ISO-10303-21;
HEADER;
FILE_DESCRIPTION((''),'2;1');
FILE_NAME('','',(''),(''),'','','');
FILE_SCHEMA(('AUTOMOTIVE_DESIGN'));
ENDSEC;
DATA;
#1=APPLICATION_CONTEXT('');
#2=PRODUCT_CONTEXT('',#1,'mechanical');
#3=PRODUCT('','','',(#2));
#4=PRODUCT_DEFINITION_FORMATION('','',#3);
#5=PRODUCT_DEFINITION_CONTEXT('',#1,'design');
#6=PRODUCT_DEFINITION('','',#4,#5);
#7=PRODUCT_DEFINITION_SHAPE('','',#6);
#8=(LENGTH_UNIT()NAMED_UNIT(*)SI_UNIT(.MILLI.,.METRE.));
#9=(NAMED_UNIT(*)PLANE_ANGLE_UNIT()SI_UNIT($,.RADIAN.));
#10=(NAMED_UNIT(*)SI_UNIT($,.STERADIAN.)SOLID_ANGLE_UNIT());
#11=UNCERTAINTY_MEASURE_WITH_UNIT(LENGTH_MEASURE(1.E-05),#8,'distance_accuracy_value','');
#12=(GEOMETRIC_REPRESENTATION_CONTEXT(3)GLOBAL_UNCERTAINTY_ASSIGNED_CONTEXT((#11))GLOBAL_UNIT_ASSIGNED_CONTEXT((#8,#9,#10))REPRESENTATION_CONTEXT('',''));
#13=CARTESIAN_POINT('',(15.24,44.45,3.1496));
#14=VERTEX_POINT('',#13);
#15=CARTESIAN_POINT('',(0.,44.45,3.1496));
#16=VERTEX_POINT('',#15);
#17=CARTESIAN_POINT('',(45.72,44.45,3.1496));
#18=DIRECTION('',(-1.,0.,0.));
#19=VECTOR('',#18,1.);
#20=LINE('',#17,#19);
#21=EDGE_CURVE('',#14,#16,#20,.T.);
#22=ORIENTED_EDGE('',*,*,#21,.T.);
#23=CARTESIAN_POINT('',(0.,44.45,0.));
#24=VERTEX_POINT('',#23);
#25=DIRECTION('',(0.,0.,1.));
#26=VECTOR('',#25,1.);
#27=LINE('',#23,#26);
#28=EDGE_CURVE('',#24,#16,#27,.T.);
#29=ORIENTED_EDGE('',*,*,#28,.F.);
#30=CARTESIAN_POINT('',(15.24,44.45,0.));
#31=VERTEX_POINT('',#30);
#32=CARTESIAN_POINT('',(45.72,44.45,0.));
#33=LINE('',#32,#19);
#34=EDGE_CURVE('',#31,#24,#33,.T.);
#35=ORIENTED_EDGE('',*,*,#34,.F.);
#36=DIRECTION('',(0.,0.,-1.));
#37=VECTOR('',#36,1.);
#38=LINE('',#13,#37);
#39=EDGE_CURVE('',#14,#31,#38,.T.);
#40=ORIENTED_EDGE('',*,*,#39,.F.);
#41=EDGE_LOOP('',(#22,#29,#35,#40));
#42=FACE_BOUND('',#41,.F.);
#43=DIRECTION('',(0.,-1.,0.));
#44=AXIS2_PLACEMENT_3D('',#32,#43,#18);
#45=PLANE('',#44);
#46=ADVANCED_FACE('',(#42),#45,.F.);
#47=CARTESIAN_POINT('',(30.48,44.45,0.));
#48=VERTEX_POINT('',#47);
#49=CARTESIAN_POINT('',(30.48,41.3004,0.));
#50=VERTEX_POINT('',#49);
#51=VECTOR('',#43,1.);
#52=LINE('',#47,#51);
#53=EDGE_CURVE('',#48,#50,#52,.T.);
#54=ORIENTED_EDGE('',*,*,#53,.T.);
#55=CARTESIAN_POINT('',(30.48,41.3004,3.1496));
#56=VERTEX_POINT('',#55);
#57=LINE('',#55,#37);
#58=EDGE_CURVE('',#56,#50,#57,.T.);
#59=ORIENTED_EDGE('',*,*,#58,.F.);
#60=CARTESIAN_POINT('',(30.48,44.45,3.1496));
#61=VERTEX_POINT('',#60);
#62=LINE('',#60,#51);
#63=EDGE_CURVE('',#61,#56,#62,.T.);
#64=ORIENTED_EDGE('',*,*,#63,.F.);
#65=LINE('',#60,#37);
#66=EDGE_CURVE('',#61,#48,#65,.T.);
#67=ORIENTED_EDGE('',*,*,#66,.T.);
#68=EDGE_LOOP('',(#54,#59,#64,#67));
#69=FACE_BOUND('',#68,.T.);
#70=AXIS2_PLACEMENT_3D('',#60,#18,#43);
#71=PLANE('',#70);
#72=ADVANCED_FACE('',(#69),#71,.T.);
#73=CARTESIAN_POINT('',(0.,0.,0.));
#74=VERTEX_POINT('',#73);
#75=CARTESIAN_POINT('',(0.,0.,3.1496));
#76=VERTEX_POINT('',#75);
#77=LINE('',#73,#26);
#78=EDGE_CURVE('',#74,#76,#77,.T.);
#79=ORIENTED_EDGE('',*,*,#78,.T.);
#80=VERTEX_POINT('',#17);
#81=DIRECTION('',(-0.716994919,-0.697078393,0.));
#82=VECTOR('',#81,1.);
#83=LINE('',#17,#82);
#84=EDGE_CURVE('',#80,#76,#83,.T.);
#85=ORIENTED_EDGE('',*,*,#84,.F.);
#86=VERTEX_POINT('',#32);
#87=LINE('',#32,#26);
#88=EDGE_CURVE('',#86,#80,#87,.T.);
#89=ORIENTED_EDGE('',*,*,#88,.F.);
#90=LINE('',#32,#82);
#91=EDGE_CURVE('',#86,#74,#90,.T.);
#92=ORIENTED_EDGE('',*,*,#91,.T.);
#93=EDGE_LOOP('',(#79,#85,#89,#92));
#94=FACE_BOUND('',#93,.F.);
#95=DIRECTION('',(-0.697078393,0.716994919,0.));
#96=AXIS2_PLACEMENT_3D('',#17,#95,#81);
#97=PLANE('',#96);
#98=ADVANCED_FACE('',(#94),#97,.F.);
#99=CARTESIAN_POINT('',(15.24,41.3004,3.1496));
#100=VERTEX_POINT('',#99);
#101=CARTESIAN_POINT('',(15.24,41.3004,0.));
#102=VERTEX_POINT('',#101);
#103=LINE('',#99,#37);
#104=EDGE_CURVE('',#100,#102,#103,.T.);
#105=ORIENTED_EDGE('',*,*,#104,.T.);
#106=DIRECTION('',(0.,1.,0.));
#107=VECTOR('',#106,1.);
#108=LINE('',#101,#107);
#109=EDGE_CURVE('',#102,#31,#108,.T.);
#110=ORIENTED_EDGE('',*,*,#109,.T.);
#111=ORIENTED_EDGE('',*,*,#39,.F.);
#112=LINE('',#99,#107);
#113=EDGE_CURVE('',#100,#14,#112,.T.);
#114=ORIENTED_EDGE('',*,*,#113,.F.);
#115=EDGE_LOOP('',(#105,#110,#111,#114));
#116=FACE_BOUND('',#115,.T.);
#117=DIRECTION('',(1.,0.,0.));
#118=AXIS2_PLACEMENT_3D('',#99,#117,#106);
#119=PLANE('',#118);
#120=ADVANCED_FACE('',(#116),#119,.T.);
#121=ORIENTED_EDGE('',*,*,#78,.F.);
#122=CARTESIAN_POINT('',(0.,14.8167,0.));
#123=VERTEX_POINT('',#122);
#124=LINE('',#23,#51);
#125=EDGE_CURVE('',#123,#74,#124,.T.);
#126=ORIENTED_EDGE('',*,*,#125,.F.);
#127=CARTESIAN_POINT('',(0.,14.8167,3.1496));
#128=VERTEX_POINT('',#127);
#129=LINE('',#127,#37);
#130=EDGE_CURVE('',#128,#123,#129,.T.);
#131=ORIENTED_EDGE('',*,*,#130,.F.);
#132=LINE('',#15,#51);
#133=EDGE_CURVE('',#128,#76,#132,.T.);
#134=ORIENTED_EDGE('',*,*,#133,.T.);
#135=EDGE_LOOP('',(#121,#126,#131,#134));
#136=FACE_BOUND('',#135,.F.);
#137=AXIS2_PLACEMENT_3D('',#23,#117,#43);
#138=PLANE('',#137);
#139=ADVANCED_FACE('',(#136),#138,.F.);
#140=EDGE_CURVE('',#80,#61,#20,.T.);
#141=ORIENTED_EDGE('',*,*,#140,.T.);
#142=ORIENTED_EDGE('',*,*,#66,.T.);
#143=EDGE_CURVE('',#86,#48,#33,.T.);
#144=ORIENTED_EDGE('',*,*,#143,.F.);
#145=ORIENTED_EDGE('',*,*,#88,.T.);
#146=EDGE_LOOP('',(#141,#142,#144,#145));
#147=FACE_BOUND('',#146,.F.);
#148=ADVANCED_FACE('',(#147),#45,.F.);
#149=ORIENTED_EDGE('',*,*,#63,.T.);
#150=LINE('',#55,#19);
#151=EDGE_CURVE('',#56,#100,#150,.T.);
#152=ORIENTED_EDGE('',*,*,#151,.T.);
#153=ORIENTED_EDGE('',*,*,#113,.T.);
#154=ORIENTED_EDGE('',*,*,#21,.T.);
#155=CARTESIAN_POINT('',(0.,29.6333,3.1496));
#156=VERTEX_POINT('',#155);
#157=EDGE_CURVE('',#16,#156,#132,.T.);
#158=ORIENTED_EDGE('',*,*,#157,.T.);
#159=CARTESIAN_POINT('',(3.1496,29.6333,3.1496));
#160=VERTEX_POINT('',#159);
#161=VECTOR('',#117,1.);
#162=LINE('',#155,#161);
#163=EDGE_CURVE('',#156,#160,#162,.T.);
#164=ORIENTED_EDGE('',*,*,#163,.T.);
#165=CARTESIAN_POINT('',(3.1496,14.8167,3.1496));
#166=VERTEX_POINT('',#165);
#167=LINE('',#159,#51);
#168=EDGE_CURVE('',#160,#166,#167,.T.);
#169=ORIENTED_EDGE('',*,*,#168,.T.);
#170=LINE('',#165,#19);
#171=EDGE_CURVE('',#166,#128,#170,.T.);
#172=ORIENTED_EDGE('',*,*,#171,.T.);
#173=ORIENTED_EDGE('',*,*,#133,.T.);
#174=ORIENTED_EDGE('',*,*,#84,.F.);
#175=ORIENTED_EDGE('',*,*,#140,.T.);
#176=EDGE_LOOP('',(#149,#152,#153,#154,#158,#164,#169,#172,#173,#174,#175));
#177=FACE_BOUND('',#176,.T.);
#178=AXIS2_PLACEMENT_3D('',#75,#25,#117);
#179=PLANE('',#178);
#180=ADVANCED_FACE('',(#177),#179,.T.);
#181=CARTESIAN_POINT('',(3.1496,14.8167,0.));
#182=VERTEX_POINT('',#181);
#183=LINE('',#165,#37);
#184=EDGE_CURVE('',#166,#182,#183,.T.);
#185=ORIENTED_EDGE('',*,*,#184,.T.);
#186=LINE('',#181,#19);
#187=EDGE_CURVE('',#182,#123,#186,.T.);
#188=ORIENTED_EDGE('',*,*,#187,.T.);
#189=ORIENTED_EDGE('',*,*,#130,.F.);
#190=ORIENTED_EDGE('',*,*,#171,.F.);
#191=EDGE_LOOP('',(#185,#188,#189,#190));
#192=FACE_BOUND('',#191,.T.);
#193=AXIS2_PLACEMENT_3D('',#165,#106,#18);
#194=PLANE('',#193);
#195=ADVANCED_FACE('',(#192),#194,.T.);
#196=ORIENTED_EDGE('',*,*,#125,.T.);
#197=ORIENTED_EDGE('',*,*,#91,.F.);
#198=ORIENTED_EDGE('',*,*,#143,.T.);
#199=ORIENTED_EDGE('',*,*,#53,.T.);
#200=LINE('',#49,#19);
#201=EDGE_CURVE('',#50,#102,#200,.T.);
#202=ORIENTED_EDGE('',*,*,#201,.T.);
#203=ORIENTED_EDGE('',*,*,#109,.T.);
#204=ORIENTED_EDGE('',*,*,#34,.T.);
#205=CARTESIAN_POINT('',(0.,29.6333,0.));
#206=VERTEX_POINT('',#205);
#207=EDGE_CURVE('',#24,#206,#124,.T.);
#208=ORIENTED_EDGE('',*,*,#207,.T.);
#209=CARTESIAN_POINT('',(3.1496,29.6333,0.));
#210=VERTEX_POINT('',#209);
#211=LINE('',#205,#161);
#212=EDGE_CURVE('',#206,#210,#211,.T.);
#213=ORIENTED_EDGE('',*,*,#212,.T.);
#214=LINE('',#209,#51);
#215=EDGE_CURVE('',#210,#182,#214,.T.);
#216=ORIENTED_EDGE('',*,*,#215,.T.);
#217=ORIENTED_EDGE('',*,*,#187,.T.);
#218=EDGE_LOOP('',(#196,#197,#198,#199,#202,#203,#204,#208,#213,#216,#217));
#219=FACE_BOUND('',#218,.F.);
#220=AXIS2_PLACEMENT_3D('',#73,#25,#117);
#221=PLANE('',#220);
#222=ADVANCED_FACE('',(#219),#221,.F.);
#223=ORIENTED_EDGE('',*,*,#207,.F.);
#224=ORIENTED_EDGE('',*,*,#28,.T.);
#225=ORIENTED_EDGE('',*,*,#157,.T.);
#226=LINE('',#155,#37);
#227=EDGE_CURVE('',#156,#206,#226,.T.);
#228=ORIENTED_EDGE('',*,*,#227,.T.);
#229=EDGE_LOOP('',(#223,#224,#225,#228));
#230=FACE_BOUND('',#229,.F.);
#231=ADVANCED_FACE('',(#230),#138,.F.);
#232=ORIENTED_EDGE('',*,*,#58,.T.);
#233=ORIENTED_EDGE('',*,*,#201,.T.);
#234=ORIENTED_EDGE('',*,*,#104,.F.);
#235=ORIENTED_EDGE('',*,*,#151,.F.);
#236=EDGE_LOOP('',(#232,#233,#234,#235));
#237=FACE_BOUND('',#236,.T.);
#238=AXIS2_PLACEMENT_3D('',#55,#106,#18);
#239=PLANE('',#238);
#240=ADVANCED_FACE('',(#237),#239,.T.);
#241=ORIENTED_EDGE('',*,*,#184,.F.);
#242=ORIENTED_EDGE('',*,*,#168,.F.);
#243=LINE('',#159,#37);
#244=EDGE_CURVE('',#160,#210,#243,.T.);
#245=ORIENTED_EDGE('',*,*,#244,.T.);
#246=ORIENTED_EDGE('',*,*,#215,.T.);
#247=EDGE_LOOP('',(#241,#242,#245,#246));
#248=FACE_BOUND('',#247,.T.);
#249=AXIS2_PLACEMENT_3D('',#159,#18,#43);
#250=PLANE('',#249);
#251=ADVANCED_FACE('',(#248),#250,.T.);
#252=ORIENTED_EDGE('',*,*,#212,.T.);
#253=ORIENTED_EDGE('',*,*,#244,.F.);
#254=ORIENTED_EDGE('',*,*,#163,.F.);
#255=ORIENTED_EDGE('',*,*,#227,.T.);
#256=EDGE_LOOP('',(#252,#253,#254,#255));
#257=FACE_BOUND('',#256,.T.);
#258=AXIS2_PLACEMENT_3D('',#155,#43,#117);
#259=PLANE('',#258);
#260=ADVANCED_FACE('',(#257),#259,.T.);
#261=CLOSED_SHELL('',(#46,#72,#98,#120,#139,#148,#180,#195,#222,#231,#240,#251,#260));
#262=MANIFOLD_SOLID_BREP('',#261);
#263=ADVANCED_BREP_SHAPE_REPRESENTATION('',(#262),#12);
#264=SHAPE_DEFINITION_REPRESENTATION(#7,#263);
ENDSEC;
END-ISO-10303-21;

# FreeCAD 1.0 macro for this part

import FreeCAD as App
import Part
import Sketcher

V = App.Vector
Q = App.Units.Quantity


def add_polygon(sketch, points):
    """Adds a closed chain of lines whose ends are joined by coincident constraints."""
    first, n = sketch.GeometryCount, len(points)
    for a, b in zip(points, points[1:] + points[:1]):
        sketch.addGeometry(Part.LineSegment(App.Vector(*a, 0), App.Vector(*b, 0)), False)
    for i in range(n):
        sketch.addConstraint(Sketcher.Constraint("Coincident", first + i, 2, first + (i + 1) % n, 1))

doc = App.newDocument("Part")
body = doc.addObject("PartDesign::Body", "Body")

# Sketch on XY plane
sketch1 = body.newObject("Sketcher::SketchObject", "Sketch")
sketch1.AttachmentSupport = (doc.getObject("XY_Plane"), [""])
sketch1.MapMode = "FlatFace"
add_polygon(sketch1, [(0, 44), (0, 0), (46, 0), (46, 44)])  # lines 0-3
sketch1.addConstraint([
    Sketcher.Constraint("Vertical", 0),
    Sketcher.Constraint("Horizontal", 1),
    Sketcher.Constraint("Vertical", 2),
    Sketcher.Constraint("Horizontal", 3),
    Sketcher.Constraint("Coincident", 0, 2, -1, 1),
    Sketcher.Constraint("DistanceX", 1, 1, 1, 2, Q("1.8 in")),
    Sketcher.Constraint("DistanceY", 0, 2, 0, 1, Q("1.75 in")),
])
pad1 = body.newObject("PartDesign::Pad", "Pad")
pad1.Profile = sketch1
pad1.Length = Q("0.124 in")

# Sketch on XY plane
sketch2 = body.newObject("Sketcher::SketchObject", "Sketch001")
sketch2.AttachmentSupport = (doc.getObject("XY_Plane"), [""])
sketch2.MapMode = "FlatFace"
sketch2.AttachmentOffset = App.Placement(V(0, 0, 0.124 * 25.4), App.Rotation())
add_polygon(sketch2, [(30.5, 41.3), (30.5, 44.5), (15.2, 44.5), (15.2, 41.3)])  # lines 0-3
add_polygon(sketch2, [(3.1, 29.6), (0, 29.6), (0, 14.8), (3.1, 14.8)])  # lines 4-7
sketch2.addConstraint([
    Sketcher.Constraint("Vertical", 0),
    Sketcher.Constraint("Horizontal", 1),
    Sketcher.Constraint("Vertical", 2),
    Sketcher.Constraint("Horizontal", 3),
    Sketcher.Constraint("Horizontal", 4),
    Sketcher.Constraint("Vertical", 5),
    Sketcher.Constraint("Horizontal", 6),
    Sketcher.Constraint("Vertical", 7),
    Sketcher.Constraint("PointOnObject", 4, 2, -2),
    Sketcher.Constraint("Equal", 6, 0),
    Sketcher.Constraint("DistanceX", 1, 2, 1, 1, Q("0.6 in")),
    Sketcher.Constraint("DistanceX", -1, 1, 1, 2, Q("0.6 in")),
    Sketcher.Constraint("DistanceX", 4, 2, 4, 1, Q("0.124 in")),
    Sketcher.Constraint("DistanceY", 5, 2, 5, 1, Q("14.8166 mm")),
    Sketcher.Constraint("DistanceY", -1, 1, 5, 2, Q("14.8167 mm")),
    Sketcher.Constraint("DistanceY", -1, 1, 0, 2, Q("1.75 in")),
])
pocket1 = body.newObject("PartDesign::Pocket", "Pocket")
pocket1.Profile = sketch2
pocket1.Length = Q("0.124 in")

# Sketch on XY plane
sketch3 = body.newObject("Sketcher::SketchObject", "Sketch002")
sketch3.AttachmentSupport = (doc.getObject("XY_Plane"), [""])
sketch3.MapMode = "FlatFace"
sketch3.AttachmentOffset = App.Placement(V(0, 0, 0.124 * 25.4), App.Rotation())
add_polygon(sketch3, [(46, 44), (0, 0), (46, 0)])  # lines 0-2
sketch3.addConstraint([
    Sketcher.Constraint("Horizontal", 1),
    Sketcher.Constraint("Vertical", 2),
    Sketcher.Constraint("Coincident", 0, 2, -1, 1),
    Sketcher.Constraint("DistanceX", 1, 1, 1, 2, Q("1.8 in")),
    Sketcher.Constraint("DistanceY", 2, 1, 2, 2, Q("1.75 in")),
])
pocket2 = body.newObject("PartDesign::Pocket", "Pocket001")
pocket2.Profile = sketch3
pocket2.Length = Q("0.124 in")

doc.recompute()
